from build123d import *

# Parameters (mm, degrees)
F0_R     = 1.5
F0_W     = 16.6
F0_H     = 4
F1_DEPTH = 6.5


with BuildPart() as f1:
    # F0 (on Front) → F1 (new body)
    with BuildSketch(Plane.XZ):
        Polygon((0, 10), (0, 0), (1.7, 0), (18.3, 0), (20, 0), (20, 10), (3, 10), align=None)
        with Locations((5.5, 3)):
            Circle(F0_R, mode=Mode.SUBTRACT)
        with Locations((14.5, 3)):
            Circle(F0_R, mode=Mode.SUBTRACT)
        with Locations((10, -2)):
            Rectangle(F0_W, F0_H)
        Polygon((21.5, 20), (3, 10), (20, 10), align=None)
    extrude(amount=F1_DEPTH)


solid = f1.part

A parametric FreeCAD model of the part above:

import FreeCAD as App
import Part
import Sketcher
Q = App.Units.Quantity

doc = App.newDocument("Part")
body = doc.addObject("PartDesign::Body", "Body")

# Sketch on XZ plane
sketch1 = body.newObject("Sketcher::SketchObject", "Sketch")
sketch1.AttachmentSupport = (doc.getObject("XZ_Plane"), [""])
sketch1.MapMode = "FlatFace"
sketch1.addGeometry([
    Part.LineSegment(App.Vector(0, 10, 0), App.Vector(0, 0, 0)),  # 0
    Part.LineSegment(App.Vector(0, 0, 0), App.Vector(1.7, 0, 0)),  # 1
    Part.LineSegment(App.Vector(1.7, 0, 0), App.Vector(1.7, -4, 0)),  # 2
    Part.LineSegment(App.Vector(1.7, -4, 0), App.Vector(18.3, -4, 0)),  # 3
    Part.LineSegment(App.Vector(18.3, -4, 0), App.Vector(18.3, 0, 0)),  # 4
    Part.LineSegment(App.Vector(18.3, 0, 0), App.Vector(20, 0, 0)),  # 5
    Part.LineSegment(App.Vector(20, 0, 0), App.Vector(20, 10, 0)),  # 6
    Part.LineSegment(App.Vector(20, 10, 0), App.Vector(21.5, 20, 0)),  # 7
    Part.LineSegment(App.Vector(21.5, 20, 0), App.Vector(3, 10, 0)),  # 8
    Part.LineSegment(App.Vector(3, 10, 0), App.Vector(0, 10, 0)),  # 9
    Part.Circle(App.Vector(5.5, 3, 0), App.Vector(0, 0, 1), 1.5),  # 10
    Part.Circle(App.Vector(14.5, 3, 0), App.Vector(0, 0, 1), 1.5),  # 11
], False)
sketch1.addConstraint([
    Sketcher.Constraint("Coincident", 0, 2, 1, 1),
    Sketcher.Constraint("Coincident", 1, 2, 2, 1),
    Sketcher.Constraint("Coincident", 2, 2, 3, 1),
    Sketcher.Constraint("Coincident", 3, 2, 4, 1),
    Sketcher.Constraint("Coincident", 4, 2, 5, 1),
    Sketcher.Constraint("Coincident", 5, 2, 6, 1),
    Sketcher.Constraint("Coincident", 6, 2, 7, 1),
    Sketcher.Constraint("Coincident", 7, 2, 8, 1),
    Sketcher.Constraint("Coincident", 8, 2, 9, 1),
    Sketcher.Constraint("Coincident", 9, 2, 0, 1),
    Sketcher.Constraint("Vertical", 0),
    Sketcher.Constraint("Horizontal", 1),
    Sketcher.Constraint("Vertical", 2),
    Sketcher.Constraint("Horizontal", 3),
    Sketcher.Constraint("Vertical", 4),
    Sketcher.Constraint("Horizontal", 5),
    Sketcher.Constraint("Vertical", 6),
    Sketcher.Constraint("Horizontal", 9),
    Sketcher.Constraint("Coincident", 0, 2, -1, 1),
    Sketcher.Constraint("Equal", 10, 11),
    Sketcher.Constraint("PointOnObject", 4, 2, -1),
    Sketcher.Constraint("Horizontal", 10, 3, 11, 3),
    Sketcher.Constraint("Horizontal", 6, 2, 8, 2),
    Sketcher.Constraint("Equal", 1, 5),
    Sketcher.Constraint("Diameter", 10, Q("3 mm")),
    Sketcher.Constraint("DistanceX", 9, 2, 9, 1, Q("3 mm")),
    Sketcher.Constraint("DistanceY", 0, 2, 0, 1, Q("10 mm")),
    Sketcher.Constraint("DistanceY", 2, 2, 2, 1, Q("4 mm")),
    Sketcher.Constraint("DistanceX", 1, 1, 1, 2, Q("1.7 mm")),
    Sketcher.Constraint("DistanceX", 3, 1, 3, 2, Q("16.6 mm")),
    Sketcher.Constraint("DistanceY", -1, 1, 10, 3, Q("3 mm")),
    Sketcher.Constraint("DistanceY", -1, 1, 7, 2, Q("20 mm")),
    Sketcher.Constraint("DistanceX", 10, 3, 11, 3, Q("9 mm")),
    Sketcher.Constraint("DistanceX", 11, 3, 7, 2, Q("7 mm")),
    Sketcher.Constraint("DistanceX", -1, 1, 10, 3, Q("5.5 mm")),
])
pad1 = body.newObject("PartDesign::Pad", "Pad")
pad1.Profile = sketch1
pad1.Length = 6.5

doc.recompute()
